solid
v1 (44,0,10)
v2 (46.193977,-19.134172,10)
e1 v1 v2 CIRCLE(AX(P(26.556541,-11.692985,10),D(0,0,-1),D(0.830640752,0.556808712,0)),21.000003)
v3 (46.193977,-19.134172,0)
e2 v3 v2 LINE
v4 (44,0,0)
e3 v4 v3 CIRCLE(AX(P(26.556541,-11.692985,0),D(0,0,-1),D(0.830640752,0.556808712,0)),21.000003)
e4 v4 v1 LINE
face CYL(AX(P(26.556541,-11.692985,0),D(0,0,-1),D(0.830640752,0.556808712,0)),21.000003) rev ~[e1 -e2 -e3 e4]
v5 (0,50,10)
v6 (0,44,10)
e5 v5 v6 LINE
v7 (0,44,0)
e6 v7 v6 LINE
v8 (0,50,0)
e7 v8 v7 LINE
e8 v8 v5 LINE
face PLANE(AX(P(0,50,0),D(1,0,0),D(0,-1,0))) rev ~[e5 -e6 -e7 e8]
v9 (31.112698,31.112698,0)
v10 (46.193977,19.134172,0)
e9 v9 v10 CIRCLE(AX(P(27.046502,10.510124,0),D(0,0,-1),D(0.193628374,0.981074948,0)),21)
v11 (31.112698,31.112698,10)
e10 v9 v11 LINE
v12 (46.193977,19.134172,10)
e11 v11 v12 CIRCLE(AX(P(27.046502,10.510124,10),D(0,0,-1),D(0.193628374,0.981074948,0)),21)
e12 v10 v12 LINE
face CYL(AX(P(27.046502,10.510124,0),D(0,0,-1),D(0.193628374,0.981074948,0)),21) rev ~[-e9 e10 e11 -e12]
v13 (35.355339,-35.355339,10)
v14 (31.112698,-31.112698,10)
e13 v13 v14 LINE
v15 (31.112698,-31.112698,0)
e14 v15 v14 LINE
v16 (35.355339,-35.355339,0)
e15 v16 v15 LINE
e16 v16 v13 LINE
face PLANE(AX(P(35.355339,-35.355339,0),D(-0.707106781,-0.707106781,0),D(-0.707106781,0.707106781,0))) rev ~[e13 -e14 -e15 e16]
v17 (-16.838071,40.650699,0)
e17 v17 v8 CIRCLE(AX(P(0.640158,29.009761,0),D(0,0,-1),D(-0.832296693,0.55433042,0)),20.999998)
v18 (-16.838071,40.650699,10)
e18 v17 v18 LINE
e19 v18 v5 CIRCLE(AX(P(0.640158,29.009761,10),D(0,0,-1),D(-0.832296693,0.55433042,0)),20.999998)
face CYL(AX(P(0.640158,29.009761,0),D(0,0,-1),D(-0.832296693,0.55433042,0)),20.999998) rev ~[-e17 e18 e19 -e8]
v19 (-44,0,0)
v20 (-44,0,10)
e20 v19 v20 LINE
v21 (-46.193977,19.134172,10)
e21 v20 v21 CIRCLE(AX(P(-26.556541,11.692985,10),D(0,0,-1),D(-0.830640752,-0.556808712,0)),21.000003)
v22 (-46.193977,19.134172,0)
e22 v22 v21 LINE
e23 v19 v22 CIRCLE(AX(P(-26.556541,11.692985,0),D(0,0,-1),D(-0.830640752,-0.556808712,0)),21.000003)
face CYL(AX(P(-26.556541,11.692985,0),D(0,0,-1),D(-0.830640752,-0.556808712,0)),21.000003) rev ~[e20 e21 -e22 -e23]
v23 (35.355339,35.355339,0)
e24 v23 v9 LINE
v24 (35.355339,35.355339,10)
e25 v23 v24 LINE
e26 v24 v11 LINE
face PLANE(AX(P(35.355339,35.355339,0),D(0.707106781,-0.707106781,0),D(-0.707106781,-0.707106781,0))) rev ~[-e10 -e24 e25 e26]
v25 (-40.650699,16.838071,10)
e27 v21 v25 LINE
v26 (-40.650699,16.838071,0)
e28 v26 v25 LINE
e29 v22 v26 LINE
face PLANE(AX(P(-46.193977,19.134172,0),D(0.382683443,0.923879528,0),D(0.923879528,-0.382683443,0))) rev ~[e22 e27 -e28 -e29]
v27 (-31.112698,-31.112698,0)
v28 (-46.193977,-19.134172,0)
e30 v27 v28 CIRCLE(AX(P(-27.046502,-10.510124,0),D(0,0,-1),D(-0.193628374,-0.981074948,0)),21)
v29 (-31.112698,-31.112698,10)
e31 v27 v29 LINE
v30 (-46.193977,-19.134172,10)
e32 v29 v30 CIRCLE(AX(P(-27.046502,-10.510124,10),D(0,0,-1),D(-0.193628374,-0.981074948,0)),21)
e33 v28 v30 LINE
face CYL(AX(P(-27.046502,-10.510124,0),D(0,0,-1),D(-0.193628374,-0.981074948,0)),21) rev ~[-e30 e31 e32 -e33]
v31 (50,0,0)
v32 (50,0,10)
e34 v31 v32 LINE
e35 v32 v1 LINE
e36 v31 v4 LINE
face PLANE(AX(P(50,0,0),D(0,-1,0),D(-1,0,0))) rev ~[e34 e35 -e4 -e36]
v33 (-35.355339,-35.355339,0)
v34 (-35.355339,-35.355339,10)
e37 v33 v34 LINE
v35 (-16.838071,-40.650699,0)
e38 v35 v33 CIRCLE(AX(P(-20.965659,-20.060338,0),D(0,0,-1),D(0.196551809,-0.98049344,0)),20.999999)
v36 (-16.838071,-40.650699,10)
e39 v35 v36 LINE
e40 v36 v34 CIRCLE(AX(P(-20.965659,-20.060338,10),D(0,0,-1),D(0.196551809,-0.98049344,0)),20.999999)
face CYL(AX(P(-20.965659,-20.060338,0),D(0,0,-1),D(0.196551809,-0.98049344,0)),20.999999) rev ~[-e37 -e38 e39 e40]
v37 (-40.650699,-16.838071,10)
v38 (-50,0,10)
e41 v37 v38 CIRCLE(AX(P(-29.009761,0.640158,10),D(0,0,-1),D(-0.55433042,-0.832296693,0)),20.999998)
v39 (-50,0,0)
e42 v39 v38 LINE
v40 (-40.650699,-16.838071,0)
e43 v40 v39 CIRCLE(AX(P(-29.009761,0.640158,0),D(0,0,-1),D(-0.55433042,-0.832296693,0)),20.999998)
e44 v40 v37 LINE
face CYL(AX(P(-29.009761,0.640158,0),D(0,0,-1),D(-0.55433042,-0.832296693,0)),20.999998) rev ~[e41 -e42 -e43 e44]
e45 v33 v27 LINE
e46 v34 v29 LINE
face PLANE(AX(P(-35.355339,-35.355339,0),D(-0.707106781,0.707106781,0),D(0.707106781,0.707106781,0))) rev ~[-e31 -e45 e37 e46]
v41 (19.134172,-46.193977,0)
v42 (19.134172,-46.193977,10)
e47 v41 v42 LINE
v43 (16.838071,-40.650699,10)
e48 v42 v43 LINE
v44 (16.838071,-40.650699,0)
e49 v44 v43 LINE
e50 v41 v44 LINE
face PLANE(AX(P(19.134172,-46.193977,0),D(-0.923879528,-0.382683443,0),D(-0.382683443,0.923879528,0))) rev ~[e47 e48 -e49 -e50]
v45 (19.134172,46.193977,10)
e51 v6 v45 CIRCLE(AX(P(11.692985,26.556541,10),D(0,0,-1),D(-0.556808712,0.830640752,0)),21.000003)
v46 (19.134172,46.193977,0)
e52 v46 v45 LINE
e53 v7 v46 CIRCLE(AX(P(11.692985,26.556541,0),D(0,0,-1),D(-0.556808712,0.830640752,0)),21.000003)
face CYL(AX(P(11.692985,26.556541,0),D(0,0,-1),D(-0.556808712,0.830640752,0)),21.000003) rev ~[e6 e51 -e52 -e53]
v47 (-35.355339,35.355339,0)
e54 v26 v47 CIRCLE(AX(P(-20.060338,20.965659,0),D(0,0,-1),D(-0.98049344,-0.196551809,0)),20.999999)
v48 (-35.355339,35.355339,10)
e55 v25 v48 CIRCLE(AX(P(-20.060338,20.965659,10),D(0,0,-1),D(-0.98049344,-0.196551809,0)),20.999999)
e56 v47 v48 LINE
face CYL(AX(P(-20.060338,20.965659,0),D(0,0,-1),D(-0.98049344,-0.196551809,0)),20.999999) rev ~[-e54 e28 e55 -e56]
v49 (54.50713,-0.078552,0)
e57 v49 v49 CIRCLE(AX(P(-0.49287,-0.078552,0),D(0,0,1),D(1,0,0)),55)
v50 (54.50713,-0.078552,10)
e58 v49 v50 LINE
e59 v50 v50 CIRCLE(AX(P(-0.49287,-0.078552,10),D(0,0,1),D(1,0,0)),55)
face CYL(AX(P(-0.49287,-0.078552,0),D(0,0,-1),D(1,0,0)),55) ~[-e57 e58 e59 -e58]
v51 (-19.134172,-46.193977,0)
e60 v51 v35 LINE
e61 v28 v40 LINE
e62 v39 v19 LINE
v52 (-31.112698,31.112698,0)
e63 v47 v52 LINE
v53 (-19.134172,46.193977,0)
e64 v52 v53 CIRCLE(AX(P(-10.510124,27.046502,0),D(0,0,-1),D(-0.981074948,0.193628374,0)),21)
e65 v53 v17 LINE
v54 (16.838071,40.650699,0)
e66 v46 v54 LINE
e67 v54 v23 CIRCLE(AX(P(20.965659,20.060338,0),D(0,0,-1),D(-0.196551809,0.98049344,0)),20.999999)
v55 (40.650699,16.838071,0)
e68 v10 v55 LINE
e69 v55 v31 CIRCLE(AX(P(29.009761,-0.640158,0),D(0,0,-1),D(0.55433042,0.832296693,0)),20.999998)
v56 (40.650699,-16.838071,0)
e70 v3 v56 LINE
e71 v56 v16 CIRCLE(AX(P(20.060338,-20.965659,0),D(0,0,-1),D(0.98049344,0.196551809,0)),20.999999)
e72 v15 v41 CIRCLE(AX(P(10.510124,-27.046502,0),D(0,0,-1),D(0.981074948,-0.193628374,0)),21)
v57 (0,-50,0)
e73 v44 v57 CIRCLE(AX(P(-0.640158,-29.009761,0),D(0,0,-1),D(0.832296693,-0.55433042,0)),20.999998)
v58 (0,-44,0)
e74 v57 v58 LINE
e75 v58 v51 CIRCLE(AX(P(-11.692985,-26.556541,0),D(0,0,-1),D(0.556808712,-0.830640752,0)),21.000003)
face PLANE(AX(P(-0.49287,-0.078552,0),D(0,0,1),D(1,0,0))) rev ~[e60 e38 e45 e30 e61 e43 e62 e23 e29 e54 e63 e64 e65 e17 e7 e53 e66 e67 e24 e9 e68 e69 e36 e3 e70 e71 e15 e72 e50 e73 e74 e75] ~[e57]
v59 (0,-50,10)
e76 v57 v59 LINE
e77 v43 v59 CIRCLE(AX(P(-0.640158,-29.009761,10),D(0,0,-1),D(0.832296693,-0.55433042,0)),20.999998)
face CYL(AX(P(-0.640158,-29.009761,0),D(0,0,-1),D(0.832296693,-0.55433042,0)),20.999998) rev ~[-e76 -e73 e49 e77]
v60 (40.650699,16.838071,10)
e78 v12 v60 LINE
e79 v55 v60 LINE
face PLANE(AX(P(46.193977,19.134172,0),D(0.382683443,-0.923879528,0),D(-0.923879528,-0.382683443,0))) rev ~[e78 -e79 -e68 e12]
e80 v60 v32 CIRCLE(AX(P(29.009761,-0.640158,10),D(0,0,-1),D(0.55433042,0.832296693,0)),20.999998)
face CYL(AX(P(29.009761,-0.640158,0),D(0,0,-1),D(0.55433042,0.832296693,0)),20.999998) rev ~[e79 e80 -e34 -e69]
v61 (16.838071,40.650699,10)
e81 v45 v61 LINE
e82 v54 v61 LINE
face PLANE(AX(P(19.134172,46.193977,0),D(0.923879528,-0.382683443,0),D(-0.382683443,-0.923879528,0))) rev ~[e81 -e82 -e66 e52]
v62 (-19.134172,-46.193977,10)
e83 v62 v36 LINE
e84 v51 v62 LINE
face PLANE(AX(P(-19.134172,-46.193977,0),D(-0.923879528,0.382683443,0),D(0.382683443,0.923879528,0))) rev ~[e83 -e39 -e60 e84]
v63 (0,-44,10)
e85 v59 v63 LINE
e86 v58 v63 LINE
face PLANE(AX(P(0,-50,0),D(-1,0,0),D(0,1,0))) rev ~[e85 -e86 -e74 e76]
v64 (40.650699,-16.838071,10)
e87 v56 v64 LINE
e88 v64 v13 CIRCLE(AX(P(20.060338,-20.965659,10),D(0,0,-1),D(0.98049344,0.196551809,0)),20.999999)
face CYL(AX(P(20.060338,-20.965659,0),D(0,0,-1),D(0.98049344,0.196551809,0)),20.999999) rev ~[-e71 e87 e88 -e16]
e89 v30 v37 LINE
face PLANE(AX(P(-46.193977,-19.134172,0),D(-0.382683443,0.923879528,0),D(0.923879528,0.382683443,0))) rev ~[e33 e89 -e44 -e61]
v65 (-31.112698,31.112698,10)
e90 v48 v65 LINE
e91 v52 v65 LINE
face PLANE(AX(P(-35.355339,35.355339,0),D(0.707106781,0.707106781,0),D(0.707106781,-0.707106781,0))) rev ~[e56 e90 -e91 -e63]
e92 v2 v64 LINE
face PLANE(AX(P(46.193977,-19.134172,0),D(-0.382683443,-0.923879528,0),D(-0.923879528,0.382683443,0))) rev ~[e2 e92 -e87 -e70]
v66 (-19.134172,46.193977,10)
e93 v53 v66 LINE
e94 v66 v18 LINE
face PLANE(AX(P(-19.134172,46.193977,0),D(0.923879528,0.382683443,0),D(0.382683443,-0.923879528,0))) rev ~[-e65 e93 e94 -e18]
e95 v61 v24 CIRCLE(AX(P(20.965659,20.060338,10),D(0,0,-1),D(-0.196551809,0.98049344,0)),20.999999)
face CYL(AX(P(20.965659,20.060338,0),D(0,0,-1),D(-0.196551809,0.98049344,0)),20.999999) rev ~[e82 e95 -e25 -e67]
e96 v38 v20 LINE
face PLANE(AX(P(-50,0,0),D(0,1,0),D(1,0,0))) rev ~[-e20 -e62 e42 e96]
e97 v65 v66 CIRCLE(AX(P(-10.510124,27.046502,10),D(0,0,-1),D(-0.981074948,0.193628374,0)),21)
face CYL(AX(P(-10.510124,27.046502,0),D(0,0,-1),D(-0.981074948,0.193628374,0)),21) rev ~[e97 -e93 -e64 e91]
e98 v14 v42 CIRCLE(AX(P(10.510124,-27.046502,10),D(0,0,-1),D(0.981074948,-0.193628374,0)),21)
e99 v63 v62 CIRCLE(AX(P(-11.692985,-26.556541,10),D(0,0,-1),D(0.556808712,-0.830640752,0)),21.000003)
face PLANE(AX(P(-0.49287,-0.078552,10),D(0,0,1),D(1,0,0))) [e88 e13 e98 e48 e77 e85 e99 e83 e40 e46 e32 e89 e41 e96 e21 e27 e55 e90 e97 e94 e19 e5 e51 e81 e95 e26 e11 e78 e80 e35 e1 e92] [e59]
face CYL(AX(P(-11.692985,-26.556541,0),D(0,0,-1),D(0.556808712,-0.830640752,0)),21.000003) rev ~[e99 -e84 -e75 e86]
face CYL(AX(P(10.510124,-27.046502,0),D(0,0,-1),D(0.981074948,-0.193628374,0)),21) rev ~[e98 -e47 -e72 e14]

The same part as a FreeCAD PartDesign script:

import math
import FreeCAD as App
import Part
import Sketcher
from FreeCAD import Vector
Q = App.Units.Quantity

doc = App.newDocument("Part")
body = doc.addObject("PartDesign::Body", "Body")

sketch1 = body.newObject("Sketcher::SketchObject", "Sketch")
sketch1.AttachmentSupport = (doc.getObject("XY_Plane"), [""])
sketch1.MapMode = "FlatFace"
sketch1.addGeometry([
    Part.Circle(Vector(0, 0, 0), Vector(0, 0, 1), 55),
    Part.ArcOfCircle(Part.Circle(Vector(1, 29, 0), Vector(0, 0, 1), 21), math.radians(92), math.radians(146)),
    Part.LineSegment(Vector(0, 50, 0), Vector(0, 44, 0)),
    Part.ArcOfCircle(Part.Circle(Vector(12, 27, 0), Vector(0, 0, 1), 21), math.radians(69), math.radians(124)),
    Part.LineSegment(Vector(19, 46, 0), Vector(17, 41, 0)),
    Part.ArcOfCircle(Part.Circle(Vector(21, 20, 0), Vector(0, 0, 1), 21), math.radians(47), math.radians(101)),
    Part.LineSegment(Vector(35, 35, 0), Vector(31, 31, 0)),
    Part.ArcOfCircle(Part.Circle(Vector(27, 11, 0), Vector(0, 0, 1), 21), math.radians(24), math.radians(79)),
    Part.LineSegment(Vector(46, 19, 0), Vector(41, 17, 0)),
    Part.ArcOfCircle(Part.Circle(Vector(29, -1, 0), Vector(0, 0, 1), 21), math.radians(2), math.radians(56)),
    Part.LineSegment(Vector(50, 0, 0), Vector(44, 0, 0)),
    Part.ArcOfCircle(Part.Circle(Vector(27, -12, 0), Vector(0, 0, 1), 21), math.radians(-21), math.radians(34)),
    Part.LineSegment(Vector(46, -19, 0), Vector(41, -17, 0)),
    Part.ArcOfCircle(Part.Circle(Vector(20, -21, 0), Vector(0, 0, 1), 21), math.radians(-43), math.radians(11)),
    Part.LineSegment(Vector(35, -35, 0), Vector(31, -31, 0)),
    Part.ArcOfCircle(Part.Circle(Vector(11, -27, 0), Vector(0, 0, 1), 21), math.radians(-66), math.radians(-11)),
    Part.LineSegment(Vector(19, -46, 0), Vector(17, -41, 0)),
    Part.ArcOfCircle(Part.Circle(Vector(-1, -29, 0), Vector(0, 0, 1), 21), math.radians(-88), math.radians(-34)),
    Part.LineSegment(Vector(0, -50, 0), Vector(0, -44, 0)),
    Part.ArcOfCircle(Part.Circle(Vector(-12, -27, 0), Vector(0, 0, 1), 21), math.radians(-111), math.radians(-56)),
    Part.LineSegment(Vector(-19, -46, 0), Vector(-17, -41, 0)),
    Part.ArcOfCircle(Part.Circle(Vector(-21, -20, 0), Vector(0, 0, 1), 21), math.radians(-133), math.radians(-79)),
    Part.LineSegment(Vector(-35, -35, 0), Vector(-31, -31, 0)),
    Part.ArcOfCircle(Part.Circle(Vector(-27, -11, 0), Vector(0, 0, 1), 21), math.radians(-156), math.radians(-101)),
    Part.LineSegment(Vector(-46, -19, 0), Vector(-41, -17, 0)),
    Part.ArcOfCircle(Part.Circle(Vector(-29, 1, 0), Vector(0, 0, 1), 21), math.radians(-178), math.radians(-124)),
    Part.LineSegment(Vector(-50, 0, 0), Vector(-44, 0, 0)),
    Part.ArcOfCircle(Part.Circle(Vector(-27, 12, 0), Vector(0, 0, 1), 21), math.radians(159), math.radians(214)),
    Part.LineSegment(Vector(-46, 19, 0), Vector(-41, 17, 0)),
    Part.ArcOfCircle(Part.Circle(Vector(-20, 21, 0), Vector(0, 0, 1), 21), math.radians(137), math.radians(191)),
    Part.LineSegment(Vector(-35, 35, 0), Vector(-31, 31, 0)),
    Part.ArcOfCircle(Part.Circle(Vector(-11, 27, 0), Vector(0, 0, 1), 21), math.radians(114), math.radians(169)),
    Part.LineSegment(Vector(-19, 46, 0), Vector(-17, 41, 0)),
], False)
sketch1.addConstraint([
    Sketcher.Constraint("Coincident", 1, 1, 2, 1),
    Sketcher.Constraint("Coincident", 2, 2, 3, 2),
    Sketcher.Constraint("Coincident", 3, 1, 4, 1),
    Sketcher.Constraint("Coincident", 4, 2, 5, 2),
    Sketcher.Constraint("Coincident", 5, 1, 6, 1),
    Sketcher.Constraint("Coincident", 6, 2, 7, 2),
    Sketcher.Constraint("Coincident", 7, 1, 8, 1),
    Sketcher.Constraint("Coincident", 8, 2, 9, 2),
    Sketcher.Constraint("Coincident", 9, 1, 10, 1),
    Sketcher.Constraint("Coincident", 10, 2, 11, 2),
    Sketcher.Constraint("Coincident", 11, 1, 12, 1),
    Sketcher.Constraint("Coincident", 12, 2, 13, 2),
    Sketcher.Constraint("Coincident", 13, 1, 14, 1),
    Sketcher.Constraint("Coincident", 14, 2, 15, 2),
    Sketcher.Constraint("Coincident", 15, 1, 16, 1),
    Sketcher.Constraint("Coincident", 16, 2, 17, 2),
    Sketcher.Constraint("Coincident", 17, 1, 18, 1),
    Sketcher.Constraint("Coincident", 18, 2, 19, 2),
    Sketcher.Constraint("Coincident", 19, 1, 20, 1),
    Sketcher.Constraint("Coincident", 20, 2, 21, 2),
    Sketcher.Constraint("Coincident", 21, 1, 22, 1),
    Sketcher.Constraint("Coincident", 22, 2, 23, 2),
    Sketcher.Constraint("Coincident", 23, 1, 24, 1),
    Sketcher.Constraint("Coincident", 24, 2, 25, 2),
    Sketcher.Constraint("Coincident", 25, 1, 26, 1),
    Sketcher.Constraint("Coincident", 26, 2, 27, 2),
    Sketcher.Constraint("Coincident", 27, 1, 28, 1),
    Sketcher.Constraint("Coincident", 28, 2, 29, 2),
    Sketcher.Constraint("Coincident", 29, 1, 30, 1),
    Sketcher.Constraint("Coincident", 30, 2, 31, 2),
    Sketcher.Constraint("Coincident", 31, 1, 32, 1),
    Sketcher.Constraint("Coincident", 32, 2, 1, 2),
    Sketcher.Constraint("Vertical", 2),
    Sketcher.Constraint("Horizontal", 10),
    Sketcher.Constraint("Vertical", 18),
    Sketcher.Constraint("Horizontal", 26),
    Sketcher.Constraint("Equal", 1, 5),
    Sketcher.Constraint("Equal", 5, 7),
    Sketcher.Constraint("Equal", 7, 9),
    Sketcher.Constraint("Equal", 3, 11),
    Sketcher.Constraint("Equal", 9, 13),
    Sketcher.Constraint("Equal", 13, 15),
    Sketcher.Constraint("Equal", 15, 17),
    Sketcher.Constraint("Equal", 11, 19),
    Sketcher.Constraint("Equal", 17, 21),
    Sketcher.Constraint("Equal", 21, 23),
    Sketcher.Constraint("Equal", 23, 25),
    Sketcher.Constraint("Equal", 19, 27),
    Sketcher.Constraint("Equal", 25, 29),
    Sketcher.Constraint("Equal", 29, 31),
    Sketcher.Constraint("Symmetric", 1, 3, 17, 3, -1, 1),
    Sketcher.Constraint("Symmetric", 3, 3, 19, 3, -1, 1),
    Sketcher.Constraint("Symmetric", 5, 3, 21, 3, -1, 1),
    Sketcher.Constraint("Symmetric", 7, 3, 23, 3, -1, 1),
    Sketcher.Constraint("Symmetric", 9, 3, 25, 3, -1, 1),
    Sketcher.Constraint("Symmetric", 11, 3, 27, 3, -1, 1),
    Sketcher.Constraint("Symmetric", 13, 3, 29, 3, -1, 1),
    Sketcher.Constraint("Symmetric", 15, 3, 31, 3, -1, 1),
    Sketcher.Constraint("Symmetric", 15, 1, 19, 1, -2),
    Sketcher.Constraint("Symmetric", 16, 2, 20, 2, -2),
    Sketcher.Constraint("Symmetric", 13, 1, 21, 1, -2),
    Sketcher.Constraint("Symmetric", 14, 2, 22, 2, -2),
    Sketcher.Constraint("Symmetric", 11, 1, 23, 1, -2),
    Sketcher.Constraint("Symmetric", 12, 2, 24, 2, -2),
    Sketcher.Constraint("Symmetric", 9, 1, 25, 1, -2),
    Sketcher.Constraint("Symmetric", 7, 1, 27, 1, -2),
    Sketcher.Constraint("Symmetric", 8, 2, 28, 2, -2),
    Sketcher.Constraint("Symmetric", 5, 1, 29, 1, -2),
    Sketcher.Constraint("Symmetric", 6, 2, 30, 2, -2),
    Sketcher.Constraint("Symmetric", 3, 1, 31, 1, -2),
    Sketcher.Constraint("Symmetric", 4, 2, 32, 2, -2),
    Sketcher.Constraint("Symmetric", 1, 1, 17, 1, -1),
    Sketcher.Constraint("Perpendicular", 4, 12),
    Sketcher.Constraint("Perpendicular", 6, 14),
    Sketcher.Constraint("Equal", 26, 2),
    Sketcher.Constraint("Equal", 4, 6),
    Sketcher.Constraint("Equal", 6, 8),
    Sketcher.Constraint("Diameter", 0, Q("110 mm")),
    Sketcher.Constraint("Radius", 1, Q("20.999998 mm")),
    Sketcher.Constraint("DistanceX", 10, 2, 10, 1, Q("6 mm")),
    Sketcher.Constraint("Distance", 4, Q("6.000001 mm")),
    Sketcher.Constraint("DistanceY", -1, 1, 1, 1, Q("50 mm")),
    Sketcher.Constraint("DistanceX", -1, 1, 9, 1, Q("50 mm")),
    Sketcher.Constraint("Angle", 4, Q("-112.500001 deg")),
    Sketcher.Constraint("Radius", 3, Q("21.000003 mm")),
    Sketcher.Constraint("DistanceY", 5, 3, 5, 1, Q("15.295001 mm")),
    Sketcher.Constraint("DistanceY", 6, 2, 4, 2, Q("9.538001 mm")),
    Sketcher.Constraint("DistanceX", 6, 2, 8, 2, Q("9.538001 mm")),
    Sketcher.Constraint("DistanceX", 13, 3, 13, 1, Q("15.295001 mm")),
    Sketcher.Constraint("DistanceY", -1, 1, 4, 2, Q("40.650699 mm")),
    Sketcher.Constraint("DistanceX", -1, 1, 6, 2, Q("31.112698 mm")),
    Sketcher.Constraint("DistanceX", 0, 3, -1, 1, Q("0.49287 mm")),
    Sketcher.Constraint("DistanceY", 0, 3, 5, 3, Q("20.13889 mm")),
])
pad1 = body.newObject("PartDesign::Pad", "Pad")
pad1.Profile = sketch1
pad1.Length = 10

doc.recompute()
